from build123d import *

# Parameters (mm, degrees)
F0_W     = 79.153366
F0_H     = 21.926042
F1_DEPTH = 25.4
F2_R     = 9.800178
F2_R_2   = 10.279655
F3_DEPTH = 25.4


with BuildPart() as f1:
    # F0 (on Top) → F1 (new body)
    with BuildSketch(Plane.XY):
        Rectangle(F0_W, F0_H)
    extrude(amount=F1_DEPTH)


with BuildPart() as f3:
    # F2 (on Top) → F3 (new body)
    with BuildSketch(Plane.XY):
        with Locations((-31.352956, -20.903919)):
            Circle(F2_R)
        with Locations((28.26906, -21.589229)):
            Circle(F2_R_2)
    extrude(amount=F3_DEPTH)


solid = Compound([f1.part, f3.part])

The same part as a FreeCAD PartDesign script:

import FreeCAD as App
import Part
import Sketcher
Q = App.Units.Quantity

doc = App.newDocument("Part")
body = doc.addObject("PartDesign::Body", "Body")

# Sketch on XY plane
sketch1 = body.newObject("Sketcher::SketchObject", "Sketch")
sketch1.AttachmentSupport = (doc.getObject("XY_Plane"), [""])
sketch1.MapMode = "FlatFace"
sketch1.addGeometry(Part.LineSegment(App.Vector(-40, 11, 0), App.Vector(-40, -11, 0)), False)
sketch1.addGeometry(Part.LineSegment(App.Vector(-40, -11, 0), App.Vector(40, -11, 0)), False)
sketch1.addGeometry(Part.LineSegment(App.Vector(40, -11, 0), App.Vector(40, 11, 0)), False)
sketch1.addGeometry(Part.LineSegment(App.Vector(40, 11, 0), App.Vector(-40, 11, 0)), False)
sketch1.addConstraint(Sketcher.Constraint("Coincident", 0, 2, 1, 1))
sketch1.addConstraint(Sketcher.Constraint("Coincident", 1, 2, 2, 1))
sketch1.addConstraint(Sketcher.Constraint("Coincident", 2, 2, 3, 1))
sketch1.addConstraint(Sketcher.Constraint("Coincident", 3, 2, 0, 1))
sketch1.addConstraint(Sketcher.Constraint("Vertical", 0))
sketch1.addConstraint(Sketcher.Constraint("Horizontal", 1))
sketch1.addConstraint(Sketcher.Constraint("Vertical", 2))
sketch1.addConstraint(Sketcher.Constraint("Horizontal", 3))
sketch1.addConstraint(Sketcher.Constraint("Symmetric", 0, 2, 2, 2, -1, 1))
sketch1.addConstraint(Sketcher.Constraint("DistanceY", 0, 2, 0, 1, Q("21.926042 mm")))
sketch1.addConstraint(Sketcher.Constraint("DistanceX", 1, 1, 1, 2, Q("79.153366 mm")))
pad1 = body.newObject("PartDesign::Pad", "Pad")
pad1.Profile = sketch1
pad1.Length = Q("1 in")
body2 = doc.addObject("PartDesign::Body", "Body001")
body2.AllowCompound = True

# Sketch on XY plane
sketch2 = body2.newObject("Sketcher::SketchObject", "Sketch001")
sketch2.AttachmentSupport = (doc.getObject("XY_Plane001"), [""])
sketch2.MapMode = "FlatFace"
sketch2.addGeometry(Part.Circle(App.Vector(-31, -21, 0), App.Vector(0, 0, 1), 10), False)
sketch2.addGeometry(Part.Circle(App.Vector(28, -22, 0), App.Vector(0, 0, 1), 10), False)
sketch2.addConstraint(Sketcher.Constraint("Diameter", 1, Q("20.55931 mm")))
sketch2.addConstraint(Sketcher.Constraint("Diameter", 0, Q("19.600356 mm")))
sketch2.addConstraint(Sketcher.Constraint("DistanceY", 0, 3, -1, 1, Q("20.903919 mm")))
sketch2.addConstraint(Sketcher.Constraint("DistanceX", -1, 1, 1, 3, Q("28.26906 mm")))
sketch2.addConstraint(Sketcher.Constraint("DistanceY", 1, 3, -1, 1, Q("21.589229 mm")))
sketch2.addConstraint(Sketcher.Constraint("DistanceX", 0, 3, -1, 1, Q("31.352956 mm")))
pad2 = body2.newObject("PartDesign::Pad", "Pad001")
pad2.Profile = sketch2
pad2.Length = Q("1 in")

doc.recompute()
